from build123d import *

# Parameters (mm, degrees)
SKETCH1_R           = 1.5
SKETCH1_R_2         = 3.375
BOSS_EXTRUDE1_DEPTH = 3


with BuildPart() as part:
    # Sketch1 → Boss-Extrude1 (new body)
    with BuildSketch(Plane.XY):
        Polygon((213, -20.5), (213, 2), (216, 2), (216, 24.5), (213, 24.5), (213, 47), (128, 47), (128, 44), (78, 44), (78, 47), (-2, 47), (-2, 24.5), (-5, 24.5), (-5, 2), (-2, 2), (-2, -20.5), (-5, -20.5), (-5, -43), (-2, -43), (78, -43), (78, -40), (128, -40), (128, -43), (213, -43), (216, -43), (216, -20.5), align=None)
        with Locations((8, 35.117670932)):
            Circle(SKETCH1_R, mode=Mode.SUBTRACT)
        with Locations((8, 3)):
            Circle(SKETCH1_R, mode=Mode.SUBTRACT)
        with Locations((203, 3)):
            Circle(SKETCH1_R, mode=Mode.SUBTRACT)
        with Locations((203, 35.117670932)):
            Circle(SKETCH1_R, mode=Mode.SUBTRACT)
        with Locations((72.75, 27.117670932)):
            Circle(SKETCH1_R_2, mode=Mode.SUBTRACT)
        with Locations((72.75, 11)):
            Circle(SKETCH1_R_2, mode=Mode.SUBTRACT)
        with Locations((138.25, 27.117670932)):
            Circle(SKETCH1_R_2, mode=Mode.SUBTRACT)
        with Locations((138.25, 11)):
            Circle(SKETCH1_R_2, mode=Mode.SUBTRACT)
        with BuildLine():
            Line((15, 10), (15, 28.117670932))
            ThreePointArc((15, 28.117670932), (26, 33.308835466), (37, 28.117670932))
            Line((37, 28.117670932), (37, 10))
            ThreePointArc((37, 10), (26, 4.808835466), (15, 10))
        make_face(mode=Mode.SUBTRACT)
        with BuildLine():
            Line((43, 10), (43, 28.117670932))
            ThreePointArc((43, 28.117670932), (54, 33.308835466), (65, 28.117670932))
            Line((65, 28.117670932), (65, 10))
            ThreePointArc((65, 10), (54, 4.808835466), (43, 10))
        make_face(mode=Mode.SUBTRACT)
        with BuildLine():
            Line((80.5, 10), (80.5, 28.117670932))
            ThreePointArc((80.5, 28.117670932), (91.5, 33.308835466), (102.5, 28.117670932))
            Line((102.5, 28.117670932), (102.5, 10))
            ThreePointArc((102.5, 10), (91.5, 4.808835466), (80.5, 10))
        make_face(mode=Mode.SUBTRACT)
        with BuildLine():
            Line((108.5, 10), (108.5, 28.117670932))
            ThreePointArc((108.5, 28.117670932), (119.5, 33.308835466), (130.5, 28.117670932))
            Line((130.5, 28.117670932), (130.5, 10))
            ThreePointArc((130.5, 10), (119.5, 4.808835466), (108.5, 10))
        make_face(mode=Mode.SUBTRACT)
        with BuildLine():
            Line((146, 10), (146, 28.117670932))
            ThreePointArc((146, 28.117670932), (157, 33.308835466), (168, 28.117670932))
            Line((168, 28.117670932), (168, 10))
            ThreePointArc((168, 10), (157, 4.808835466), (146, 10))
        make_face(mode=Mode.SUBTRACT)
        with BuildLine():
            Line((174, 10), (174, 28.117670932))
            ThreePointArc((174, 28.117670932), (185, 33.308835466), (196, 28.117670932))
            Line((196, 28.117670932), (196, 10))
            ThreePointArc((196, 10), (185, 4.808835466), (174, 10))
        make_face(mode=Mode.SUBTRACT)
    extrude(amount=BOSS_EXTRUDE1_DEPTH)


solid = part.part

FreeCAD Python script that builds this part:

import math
import FreeCAD as App
import Part
import Sketcher
Q = App.Units.Quantity


def add_polygon(sketch, points):
    """Adds a closed chain of lines whose ends are joined by coincident constraints."""
    first, n = sketch.GeometryCount, len(points)
    for a, b in zip(points, points[1:] + points[:1]):
        sketch.addGeometry(Part.LineSegment(App.Vector(*a, 0), App.Vector(*b, 0)), False)
    for i in range(n):
        sketch.addConstraint(Sketcher.Constraint("Coincident", first + i, 2, first + (i + 1) % n, 1))

doc = App.newDocument("Part")
body = doc.addObject("PartDesign::Body", "Body")

# Sketch on XY plane
sketch1 = body.newObject("Sketcher::SketchObject", "Sketch")
sketch1.AttachmentSupport = (doc.getObject("XY_Plane"), [""])
sketch1.MapMode = "FlatFace"
add_polygon(sketch1, [(213, -20.5), (213, 2), (216, 2), (216, 24.5), (213, 24.5), (213, 47), (128, 47), (128, 44), (78, 44), (78, 47), (-2, 47), (-2, 24.5), (-5, 24.5), (-5, 2), (-2, 2), (-2, -20.5), (-5, -20.5), (-5, -43), (78, -43), (78, -40), (128, -40), (128, -43), (216, -43), (216, -20.5)])  # lines 0-23
sketch1.addGeometry(Part.Circle(App.Vector(8, 3, 0), App.Vector(0, 0, 1), 1.5), False)  # 24
sketch1.addGeometry(Part.Circle(App.Vector(72.8, 11, 0), App.Vector(0, 0, 1), 3.4), False)  # 25
sketch1.addGeometry(Part.Circle(App.Vector(203, 3, 0), App.Vector(0, 0, 1), 1.5), False)  # 26
sketch1.addGeometry(Part.Circle(App.Vector(138.2, 11, 0), App.Vector(0, 0, 1), 3.4), False)  # 27
sketch1.addGeometry(Part.ArcOfCircle(Part.Circle(App.Vector(26, 19.1, 0), App.Vector(0, 0, 1), 14.2), math.radians(-141), math.radians(-39)), False)  # 28
sketch1.addGeometry(Part.LineSegment(App.Vector(15, 10, 0), App.Vector(15, 28.1, 0)), False)  # 29
sketch1.addGeometry(Part.ArcOfCircle(Part.Circle(App.Vector(26, 19.1, 0), App.Vector(0, 0, 1), 14.2), math.radians(39), math.radians(141)), False)  # 30
sketch1.addGeometry(Part.LineSegment(App.Vector(37, 28.1, 0), App.Vector(37, 10, 0)), False)  # 31
sketch1.addGeometry(Part.ArcOfCircle(Part.Circle(App.Vector(54, 19.1, 0), App.Vector(0, 0, 1), 14.2), math.radians(-141), math.radians(-39)), False)  # 32
sketch1.addGeometry(Part.LineSegment(App.Vector(43, 10, 0), App.Vector(43, 28.1, 0)), False)  # 33
sketch1.addGeometry(Part.ArcOfCircle(Part.Circle(App.Vector(54, 19.1, 0), App.Vector(0, 0, 1), 14.2), math.radians(39), math.radians(141)), False)  # 34
sketch1.addGeometry(Part.LineSegment(App.Vector(65, 28.1, 0), App.Vector(65, 10, 0)), False)  # 35
sketch1.addGeometry(Part.ArcOfCircle(Part.Circle(App.Vector(91.5, 19.1, 0), App.Vector(0, 0, 1), 14.2), math.radians(-141), math.radians(-39)), False)  # 36
sketch1.addGeometry(Part.LineSegment(App.Vector(80.5, 10, 0), App.Vector(80.5, 28.1, 0)), False)  # 37
sketch1.addGeometry(Part.ArcOfCircle(Part.Circle(App.Vector(91.5, 19.1, 0), App.Vector(0, 0, 1), 14.2), math.radians(39), math.radians(141)), False)  # 38
sketch1.addGeometry(Part.LineSegment(App.Vector(102.5, 28.1, 0), App.Vector(102.5, 10, 0)), False)  # 39
sketch1.addGeometry(Part.Circle(App.Vector(72.8, 27.1, 0), App.Vector(0, 0, 1), 3.4), False)  # 40
sketch1.addGeometry(Part.Circle(App.Vector(8, 35.1, 0), App.Vector(0, 0, 1), 1.5), False)  # 41
sketch1.addGeometry(Part.ArcOfCircle(Part.Circle(App.Vector(119.5, 19.1, 0), App.Vector(0, 0, 1), 14.2), math.radians(-141), math.radians(-39)), False)  # 42
sketch1.addGeometry(Part.LineSegment(App.Vector(108.5, 10, 0), App.Vector(108.5, 28.1, 0)), False)  # 43
sketch1.addGeometry(Part.ArcOfCircle(Part.Circle(App.Vector(119.5, 19.1, 0), App.Vector(0, 0, 1), 14.2), math.radians(39), math.radians(141)), False)  # 44
sketch1.addGeometry(Part.LineSegment(App.Vector(130.5, 28.1, 0), App.Vector(130.5, 10, 0)), False)  # 45
sketch1.addGeometry(Part.Circle(App.Vector(138.2, 27.1, 0), App.Vector(0, 0, 1), 3.4), False)  # 46
sketch1.addGeometry(Part.ArcOfCircle(Part.Circle(App.Vector(157, 19.1, 0), App.Vector(0, 0, 1), 14.2), math.radians(-141), math.radians(-39)), False)  # 47
sketch1.addGeometry(Part.LineSegment(App.Vector(146, 10, 0), App.Vector(146, 28.1, 0)), False)  # 48
sketch1.addGeometry(Part.ArcOfCircle(Part.Circle(App.Vector(157, 19.1, 0), App.Vector(0, 0, 1), 14.2), math.radians(39), math.radians(141)), False)  # 49
sketch1.addGeometry(Part.LineSegment(App.Vector(168, 28.1, 0), App.Vector(168, 10, 0)), False)  # 50
sketch1.addGeometry(Part.ArcOfCircle(Part.Circle(App.Vector(185, 19.1, 0), App.Vector(0, 0, 1), 14.2), math.radians(-141), math.radians(-39)), False)  # 51
sketch1.addGeometry(Part.LineSegment(App.Vector(174, 10, 0), App.Vector(174, 28.1, 0)), False)  # 52
sketch1.addGeometry(Part.ArcOfCircle(Part.Circle(App.Vector(185, 19.1, 0), App.Vector(0, 0, 1), 14.2), math.radians(39), math.radians(141)), False)  # 53
sketch1.addGeometry(Part.LineSegment(App.Vector(196, 28.1, 0), App.Vector(196, 10, 0)), False)  # 54
sketch1.addGeometry(Part.Circle(App.Vector(203, 35.1, 0), App.Vector(0, 0, 1), 1.5), False)  # 55
sketch1.addConstraint([
    Sketcher.Constraint("Coincident", 28, 1, 29, 1),
    Sketcher.Constraint("Coincident", 29, 2, 30, 2),
    Sketcher.Constraint("Coincident", 30, 1, 31, 1),
    Sketcher.Constraint("Coincident", 31, 2, 28, 2),
    Sketcher.Constraint("Coincident", 32, 1, 33, 1),
    Sketcher.Constraint("Coincident", 33, 2, 34, 2),
    Sketcher.Constraint("Coincident", 34, 1, 35, 1),
    Sketcher.Constraint("Coincident", 35, 2, 32, 2),
    Sketcher.Constraint("Coincident", 36, 1, 37, 1),
    Sketcher.Constraint("Coincident", 37, 2, 38, 2),
    Sketcher.Constraint("Coincident", 38, 1, 39, 1),
    Sketcher.Constraint("Coincident", 39, 2, 36, 2),
    Sketcher.Constraint("Coincident", 42, 1, 43, 1),
    Sketcher.Constraint("Coincident", 43, 2, 44, 2),
    Sketcher.Constraint("Coincident", 44, 1, 45, 1),
    Sketcher.Constraint("Coincident", 45, 2, 42, 2),
    Sketcher.Constraint("Coincident", 47, 1, 48, 1),
    Sketcher.Constraint("Coincident", 48, 2, 49, 2),
    Sketcher.Constraint("Coincident", 49, 1, 50, 1),
    Sketcher.Constraint("Coincident", 50, 2, 47, 2),
    Sketcher.Constraint("Coincident", 51, 1, 52, 1),
    Sketcher.Constraint("Coincident", 52, 2, 53, 2),
    Sketcher.Constraint("Coincident", 53, 1, 54, 1),
    Sketcher.Constraint("Coincident", 54, 2, 51, 2),
    Sketcher.Constraint("Vertical", 0),
    Sketcher.Constraint("Horizontal", 1),
    Sketcher.Constraint("Vertical", 2),
    Sketcher.Constraint("Horizontal", 3),
    Sketcher.Constraint("Vertical", 4),
    Sketcher.Constraint("Horizontal", 5),
    Sketcher.Constraint("Vertical", 6),
    Sketcher.Constraint("Horizontal", 7),
    Sketcher.Constraint("Vertical", 8),
    Sketcher.Constraint("Horizontal", 9),
    Sketcher.Constraint("Vertical", 10),
    Sketcher.Constraint("Horizontal", 11),
    Sketcher.Constraint("Vertical", 12),
    Sketcher.Constraint("Horizontal", 13),
    Sketcher.Constraint("Vertical", 14),
    Sketcher.Constraint("Horizontal", 15),
    Sketcher.Constraint("Vertical", 16),
    Sketcher.Constraint("Horizontal", 17),
    Sketcher.Constraint("Vertical", 18),
    Sketcher.Constraint("Horizontal", 19),
    Sketcher.Constraint("Vertical", 20),
    Sketcher.Constraint("Horizontal", 21),
    Sketcher.Constraint("Vertical", 22),
    Sketcher.Constraint("Horizontal", 23),
    Sketcher.Constraint("Vertical", 29),
    Sketcher.Constraint("Vertical", 31),
    Sketcher.Constraint("Vertical", 33),
    Sketcher.Constraint("Vertical", 35),
    Sketcher.Constraint("Vertical", 37),
    Sketcher.Constraint("Vertical", 39),
    Sketcher.Constraint("Vertical", 43),
    Sketcher.Constraint("Vertical", 45),
    Sketcher.Constraint("Vertical", 48),
    Sketcher.Constraint("Vertical", 50),
    Sketcher.Constraint("Vertical", 52),
    Sketcher.Constraint("Vertical", 54),
    Sketcher.Constraint("Coincident", 30, 3, 28, 3),
    Sketcher.Constraint("Coincident", 34, 3, 32, 3),
    Sketcher.Constraint("Coincident", 38, 3, 36, 3),
    Sketcher.Constraint("Coincident", 44, 3, 42, 3),
    Sketcher.Constraint("Coincident", 49, 3, 47, 3),
    Sketcher.Constraint("Coincident", 53, 3, 51, 3),
    Sketcher.Constraint("Equal", 24, 26),
    Sketcher.Constraint("Equal", 25, 27),
    Sketcher.Constraint("Equal", 28, 30),
    Sketcher.Constraint("Equal", 30, 32),
    Sketcher.Constraint("Equal", 32, 34),
    Sketcher.Constraint("Equal", 34, 36),
    Sketcher.Constraint("Equal", 36, 38),
    Sketcher.Constraint("Equal", 27, 40),
    Sketcher.Constraint("Equal", 26, 41),
    Sketcher.Constraint("Equal", 38, 42),
    Sketcher.Constraint("Equal", 42, 44),
    Sketcher.Constraint("Equal", 40, 46),
    Sketcher.Constraint("Equal", 44, 47),
    Sketcher.Constraint("Equal", 47, 49),
    Sketcher.Constraint("Equal", 49, 51),
    Sketcher.Constraint("Equal", 51, 53),
    Sketcher.Constraint("Equal", 41, 55),
    Sketcher.Constraint("Horizontal", 24, 3, 26, 3),
    Sketcher.Constraint("Horizontal", 25, 3, 27, 3),
    Sketcher.Constraint("Horizontal", 30, 3, 32, 3),
    Sketcher.Constraint("Horizontal", 34, 3, 36, 3),
    Sketcher.Constraint("Horizontal", 38, 3, 42, 3),
    Sketcher.Constraint("Horizontal", 40, 3, 46, 3),
    Sketcher.Constraint("Horizontal", 44, 3, 47, 3),
    Sketcher.Constraint("Horizontal", 49, 3, 51, 3),
    Sketcher.Constraint("Horizontal", 41, 3, 55, 3),
    Sketcher.Constraint("Horizontal", 5, 2, 8, 2),
    Sketcher.Constraint("Horizontal", 3, 2, 10, 2),
    Sketcher.Constraint("Horizontal", 1, 2, 12, 2),
    Sketcher.Constraint("Horizontal", 17, 2, 20, 2),
    Sketcher.Constraint("Horizontal", 15, 2, 22, 2),
    Sketcher.Constraint("Horizontal", 29, 2, 30, 1),
    Sketcher.Constraint("Horizontal", 31, 2, 32, 1),
    Sketcher.Constraint("Horizontal", 33, 2, 34, 1),
    Sketcher.Constraint("Horizontal", 35, 2, 36, 1),
    Sketcher.Constraint("Horizontal", 37, 2, 38, 1),
    Sketcher.Constraint("Horizontal", 39, 2, 42, 1),
    Sketcher.Constraint("Horizontal", 43, 2, 44, 1),
    Sketcher.Constraint("Horizontal", 45, 2, 47, 1),
    Sketcher.Constraint("Horizontal", 48, 2, 49, 1),
    Sketcher.Constraint("Horizontal", 50, 2, 51, 1),
    Sketcher.Constraint("Horizontal", 52, 2, 53, 1),
    Sketcher.Constraint("Vertical", 25, 3, 40, 3),
    Sketcher.Constraint("Vertical", 24, 3, 41, 3),
    Sketcher.Constraint("Vertical", 27, 3, 46, 3),
    Sketcher.Constraint("Vertical", 26, 3, 55, 3),
    Sketcher.Constraint("Vertical", 0, 2, 3, 2),
    Sketcher.Constraint("Vertical", 10, 2, 13, 2),
    Sketcher.Constraint("Vertical", 12, 2, 15, 2),
    Sketcher.Constraint("Vertical", 8, 2, 17, 2),
    Sketcher.Constraint("Vertical", 6, 2, 19, 2),
    Sketcher.Constraint("Vertical", 2, 2, 21, 2),
    Sketcher.Constraint("Equal", 3, 11),
    Sketcher.Constraint("Equal", 0, 2),
    Sketcher.Constraint("Equal", 2, 4),
    Sketcher.Constraint("Equal", 23, 6),
    Sketcher.Constraint("Equal", 14, 16),
    Sketcher.Constraint("Equal", 8, 18),
    Sketcher.Constraint("Diameter", 24, Q("3 mm")),
    Sketcher.Constraint("Diameter", 25, Q("6.75 mm")),
    Sketcher.Constraint("DistanceX", 1, 1, 1, 2, Q("3 mm")),
    Sketcher.Constraint("DistanceX", 5, 2, 5, 1, Q("85 mm")),
    Sketcher.Constraint("DistanceX", 7, 2, 7, 1, Q("50 mm")),
    Sketcher.Constraint("DistanceX", 9, 2, 9, 1, Q("80 mm")),
    Sketcher.Constraint("Radius", 28, Q("14.25 mm")),
    Sketcher.Constraint("DistanceY", 0, 1, 0, 2, Q("22.5 mm")),
    Sketcher.Constraint("DistanceX", -1, 1, 24, 3, Q("8 mm")),
    Sketcher.Constraint("DistanceY", -1, 1, 24, 3, Q("3 mm")),
    Sketcher.Constraint("DistanceY", -1, 1, 25, 3, Q("11 mm")),
    Sketcher.Constraint("DistanceX", -1, 1, 26, 3, Q("203 mm")),
    Sketcher.Constraint("DistanceX", -1, 1, 28, 3, Q("26 mm")),
    Sketcher.Constraint("DistanceX", -1, 1, 32, 3, Q("54 mm")),
    Sketcher.Constraint("DistanceX", -1, 1, 47, 3, Q("157 mm")),
    Sketcher.Constraint("DistanceX", -1, 1, 51, 3, Q("185 mm")),
    Sketcher.Constraint("DistanceX", -1, 1, 0, 2, Q("213 mm")),
    Sketcher.Constraint("DistanceY", -1, 1, 0, 2, Q("2 mm")),
    Sketcher.Constraint("DistanceX", -1, 1, 28, 1, Q("15 mm")),
    Sketcher.Constraint("DistanceY", -1, 1, 28, 1, Q("10 mm")),
    Sketcher.Constraint("DistanceX", -1, 1, 36, 3, Q("91.5 mm")),
    Sketcher.Constraint("DistanceX", -1, 1, 42, 3, Q("119.5 mm")),
    Sketcher.Constraint("DistanceX", -1, 1, 25, 3, Q("72.75 mm")),
    Sketcher.Constraint("DistanceX", -1, 1, 27, 3, Q("138.25 mm")),
    Sketcher.Constraint("DistanceY", -1, 1, 40, 3, Q("27.117671 mm")),
    Sketcher.Constraint("DistanceY", -1, 1, 41, 3, Q("35.117671 mm")),
])
pad1 = body.newObject("PartDesign::Pad", "Pad")
pad1.Profile = sketch1
pad1.Length = 3

doc.recompute()
